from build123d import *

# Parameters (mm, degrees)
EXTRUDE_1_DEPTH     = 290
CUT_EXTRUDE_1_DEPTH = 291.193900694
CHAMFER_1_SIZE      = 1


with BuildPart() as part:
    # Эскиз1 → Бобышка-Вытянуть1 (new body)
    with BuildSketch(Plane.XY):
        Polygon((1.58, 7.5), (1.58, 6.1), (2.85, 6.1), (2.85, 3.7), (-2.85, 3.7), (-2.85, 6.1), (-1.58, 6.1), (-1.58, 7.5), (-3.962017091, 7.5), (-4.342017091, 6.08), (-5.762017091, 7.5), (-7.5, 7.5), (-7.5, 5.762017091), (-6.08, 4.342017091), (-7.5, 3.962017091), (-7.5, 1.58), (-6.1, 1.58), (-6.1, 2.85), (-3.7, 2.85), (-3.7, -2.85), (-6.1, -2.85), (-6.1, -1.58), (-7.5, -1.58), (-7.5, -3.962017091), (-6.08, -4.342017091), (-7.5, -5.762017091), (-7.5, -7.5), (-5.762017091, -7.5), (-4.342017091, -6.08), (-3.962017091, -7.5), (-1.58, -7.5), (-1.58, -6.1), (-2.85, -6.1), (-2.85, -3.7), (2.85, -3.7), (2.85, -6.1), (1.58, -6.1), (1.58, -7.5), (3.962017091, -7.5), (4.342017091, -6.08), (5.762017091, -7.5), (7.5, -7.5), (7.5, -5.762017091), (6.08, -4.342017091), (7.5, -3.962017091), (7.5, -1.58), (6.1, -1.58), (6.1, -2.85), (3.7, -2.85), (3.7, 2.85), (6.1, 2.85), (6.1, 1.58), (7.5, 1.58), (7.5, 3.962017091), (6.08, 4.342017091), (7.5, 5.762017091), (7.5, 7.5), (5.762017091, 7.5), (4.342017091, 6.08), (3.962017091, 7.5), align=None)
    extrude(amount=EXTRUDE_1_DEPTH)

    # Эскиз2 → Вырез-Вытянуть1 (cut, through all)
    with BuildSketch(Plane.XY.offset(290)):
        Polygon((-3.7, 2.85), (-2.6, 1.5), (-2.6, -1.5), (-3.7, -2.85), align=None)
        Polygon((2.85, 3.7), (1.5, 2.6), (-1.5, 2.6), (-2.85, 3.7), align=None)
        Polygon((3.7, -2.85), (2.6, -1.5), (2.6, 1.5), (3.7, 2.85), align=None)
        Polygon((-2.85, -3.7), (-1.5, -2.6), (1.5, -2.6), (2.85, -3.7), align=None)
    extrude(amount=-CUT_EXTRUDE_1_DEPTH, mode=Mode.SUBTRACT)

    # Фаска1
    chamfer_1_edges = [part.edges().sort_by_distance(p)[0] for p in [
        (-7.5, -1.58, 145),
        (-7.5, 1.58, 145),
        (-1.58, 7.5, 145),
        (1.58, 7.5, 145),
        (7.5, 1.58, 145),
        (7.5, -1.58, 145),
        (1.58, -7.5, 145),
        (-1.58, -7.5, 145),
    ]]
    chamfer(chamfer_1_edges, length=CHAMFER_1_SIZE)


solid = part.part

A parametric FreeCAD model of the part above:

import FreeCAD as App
import Part
import Sketcher


def edges_at(feature, points):
    """Names of the edges that pass closest to the given points."""
    edges = feature.Shape.Edges
    near = lambda p: min(range(len(edges)), key=lambda i: edges[i].distToShape(Part.Vertex(*p))[0])
    return sorted({f"Edge{near(p) + 1}" for p in points})


def add_polygon(sketch, points):
    """Adds a closed chain of lines whose ends are joined by coincident constraints."""
    first, n = sketch.GeometryCount, len(points)
    for a, b in zip(points, points[1:] + points[:1]):
        sketch.addGeometry(Part.LineSegment(App.Vector(*a, 0), App.Vector(*b, 0)), False)
    for i in range(n):
        sketch.addConstraint(Sketcher.Constraint("Coincident", first + i, 2, first + (i + 1) % n, 1))

doc = App.newDocument("Part")
params = doc.addObject("Spreadsheet::Sheet", "Params")
for row, (alias, value) in enumerate([
    ("sketch1_width", "5.7 mm"),
    ("sketch1_width2", "1.4 mm"),
    ("sketch1_width3", "2.4 mm"),
    ("sketch1_width4", "1.27 mm"),
    ("pad1_length", "290 mm"),
    ("sketch2_width", "3 mm"),
    ("sketch2_width2", "5.7 mm"),
    ("chamfer_size", "1 mm"),
], start=1):
    params.set(f"A{row}", alias)
    params.set(f"B{row}", "=" + value)
    params.setAlias(f"B{row}", alias)

body = doc.addObject("PartDesign::Body", "Body")

# Sketch on XY plane
sketch1 = body.newObject("Sketcher::SketchObject", "Sketch")
sketch1.AttachmentSupport = (doc.getObject("XY_Plane"), [""])
sketch1.MapMode = "FlatFace"
add_polygon(sketch1, [(1.6, 7.5), (1.6, 6.1), (2.9, 6.1), (2.9, 3.7), (-2.9, 3.7), (-2.9, 6.1), (-1.6, 6.1), (-1.6, 7.5), (-4, 7.5), (-4.3, 6.1), (-5.8, 7.5), (-7.5, 7.5), (-7.5, 5.8), (-6.1, 4.3), (-7.5, 4), (-7.5, 1.6), (-6.1, 1.6), (-6.1, 2.9), (-3.7, 2.9), (-3.7, -2.9), (-6.1, -2.9), (-6.1, -1.6), (-7.5, -1.6), (-7.5, -4), (-6.1, -4.3), (-7.5, -5.8), (-7.5, -7.5), (-5.8, -7.5), (-4.3, -6.1), (-4, -7.5), (-1.6, -7.5), (-1.6, -6.1), (-2.9, -6.1), (-2.9, -3.7), (2.9, -3.7), (2.9, -6.1), (1.6, -6.1), (1.6, -7.5), (4, -7.5), (4.3, -6.1), (5.8, -7.5), (7.5, -7.5), (7.5, -5.8), (6.1, -4.3), (7.5, -4), (7.5, -1.6), (6.1, -1.6), (6.1, -2.9), (3.7, -2.9), (3.7, 2.9), (6.1, 2.9), (6.1, 1.6), (7.5, 1.6), (7.5, 4), (6.1, 4.3), (7.5, 5.8), (7.5, 7.5), (5.8, 7.5), (4.3, 6.1), (4, 7.5)])  # lines 0-59
sketch1.addConstraint([
    Sketcher.Constraint("Vertical", 0),
    Sketcher.Constraint("Horizontal", 1),
    Sketcher.Constraint("Vertical", 2),
    Sketcher.Constraint("Horizontal", 3),
    Sketcher.Constraint("Vertical", 4),
    Sketcher.Constraint("Horizontal", 5),
    Sketcher.Constraint("Vertical", 6),
    Sketcher.Constraint("Horizontal", 7),
    Sketcher.Constraint("Horizontal", 10),
    Sketcher.Constraint("Vertical", 11),
    Sketcher.Constraint("Vertical", 14),
    Sketcher.Constraint("Horizontal", 15),
    Sketcher.Constraint("Vertical", 16),
    Sketcher.Constraint("Horizontal", 17),
    Sketcher.Constraint("Vertical", 18),
    Sketcher.Constraint("Horizontal", 19),
    Sketcher.Constraint("Vertical", 20),
    Sketcher.Constraint("Horizontal", 21),
    Sketcher.Constraint("Vertical", 22),
    Sketcher.Constraint("Vertical", 25),
    Sketcher.Constraint("Horizontal", 26),
    Sketcher.Constraint("Horizontal", 29),
    Sketcher.Constraint("Vertical", 30),
    Sketcher.Constraint("Horizontal", 31),
    Sketcher.Constraint("Vertical", 32),
    Sketcher.Constraint("Horizontal", 33),
    Sketcher.Constraint("Vertical", 34),
    Sketcher.Constraint("Horizontal", 35),
    Sketcher.Constraint("Vertical", 36),
    Sketcher.Constraint("Horizontal", 37),
    Sketcher.Constraint("Horizontal", 40),
    Sketcher.Constraint("Vertical", 41),
    Sketcher.Constraint("Vertical", 44),
    Sketcher.Constraint("Horizontal", 45),
    Sketcher.Constraint("Vertical", 46),
    Sketcher.Constraint("Horizontal", 47),
    Sketcher.Constraint("Vertical", 48),
    Sketcher.Constraint("Horizontal", 49),
    Sketcher.Constraint("Vertical", 50),
    Sketcher.Constraint("Horizontal", 51),
    Sketcher.Constraint("Vertical", 52),
    Sketcher.Constraint("Vertical", 55),
    Sketcher.Constraint("Horizontal", 56),
    Sketcher.Constraint("Horizontal", 59),
    Sketcher.Constraint("Symmetric", 0, 2, 30, 2, -1, 1),
    Sketcher.Constraint("Symmetric", 2, 2, 32, 2, -1, 1),
    Sketcher.Constraint("Symmetric", 4, 2, 34, 2, -1, 1),
    Sketcher.Constraint("Symmetric", 6, 2, 36, 2, -1, 1),
    Sketcher.Constraint("Symmetric", 8, 2, 38, 2, -1, 1),
    Sketcher.Constraint("Symmetric", 9, 2, 39, 2, -1, 1),
    Sketcher.Constraint("Symmetric", 11, 2, 41, 2, -1, 1),
    Sketcher.Constraint("Symmetric", 12, 2, 42, 2, -1, 1),
    Sketcher.Constraint("Symmetric", 13, 2, 43, 2, -1, 1),
    Sketcher.Constraint("Symmetric", 15, 2, 45, 2, -1, 1),
    Sketcher.Constraint("Symmetric", 17, 2, 47, 2, -1, 1),
    Sketcher.Constraint("Symmetric", 19, 2, 49, 2, -1, 1),
    Sketcher.Constraint("Symmetric", 21, 2, 51, 2, -1, 1),
    Sketcher.Constraint("Symmetric", 23, 2, 53, 2, -1, 1),
    Sketcher.Constraint("Symmetric", 24, 2, 54, 2, -1, 1),
    Sketcher.Constraint("Symmetric", 26, 2, 56, 2, -1, 1),
    Sketcher.Constraint("Symmetric", 27, 2, 57, 2, -1, 1),
    Sketcher.Constraint("Symmetric", 28, 2, 58, 2, -1, 1),
    Sketcher.Constraint("Symmetric", 1, 2, 4, 2, -2),
    Sketcher.Constraint("Symmetric", 29, 2, 36, 2, -2),
    Sketcher.Constraint("Symmetric", 27, 2, 38, 2, -2),
    Sketcher.Constraint("Symmetric", 26, 2, 39, 2, -2),
    Sketcher.Constraint("Symmetric", 24, 2, 41, 2, -2),
    Sketcher.Constraint("Symmetric", 23, 2, 42, 2, -2),
    Sketcher.Constraint("Symmetric", 22, 2, 43, 2, -2),
    Sketcher.Constraint("Symmetric", 20, 2, 45, 2, -2),
    Sketcher.Constraint("Parallel", 9, 12),
    Sketcher.Constraint("Perpendicular", 8, 23),
    Sketcher.Constraint("Perpendicular", 12, 24),
    Sketcher.Constraint("Perpendicular", 13, 28),
    Sketcher.Constraint("Perpendicular", 23, 38),
    Sketcher.Constraint("Perpendicular", 38, 53),
    Sketcher.Constraint("Horizontal", 7, 2, 9, 2),
    Sketcher.Constraint("Horizontal", 19, 2, 46, 2),
    Sketcher.Constraint("Vertical", 11, 2, 13, 2),
    Sketcher.Constraint("Equal", 51, 0),
    Sketcher.Constraint("Equal", 49, 2),
    Sketcher.Constraint("Equal", 56, 11),
    Sketcher.Constraint("Equal", 59, 14),
    Sketcher.Constraint("Equal", 35, 16),
    Sketcher.Constraint("Equal", 33, 18),
    Sketcher.Constraint("Equal", 9, 12),
    Sketcher.Constraint("DistanceX", 3, 2, 3, 1, 5.7),
    Sketcher.Constraint("DistanceX", 15, 1, 15, 2, 1.4),
    Sketcher.Constraint("DistanceX", 17, 1, 17, 2, 2.4),
    Sketcher.Constraint("DistanceX", 1, 1, 1, 2, 1.27),
    Sketcher.Constraint("DistanceY", -1, 1, 0, 2, 6.1),
    Sketcher.Constraint("DistanceX", 9, 2, 7, 2, 1.8),
    Sketcher.Constraint("DistanceY", 14, 2, 8, 2, 4.5),
    Sketcher.Constraint("DistanceX", 7, 2, 7, 1, 2.382017),
])
sketch1.setExpression("Constraints[146]", "Params.sketch1_width")
sketch1.setExpression("Constraints[147]", "Params.sketch1_width2")
sketch1.setExpression("Constraints[148]", "Params.sketch1_width3")
sketch1.setExpression("Constraints[149]", "Params.sketch1_width4")
pad1 = body.newObject("PartDesign::Pad", "Pad")
pad1.Profile = sketch1
pad1.setExpression("Length", "Params.pad1_length")

# Sketch on XY plane
sketch2 = body.newObject("Sketcher::SketchObject", "Sketch001")
sketch2.AttachmentSupport = (doc.getObject("XY_Plane"), [""])
sketch2.MapMode = "FlatFace"
sketch2.AttachmentOffset = App.Placement(App.Vector(0, 0, 290), App.Rotation())
add_polygon(sketch2, [(-2.6, 1.5), (-3.7, 2.9), (-3.7, -2.9), (-2.6, -1.5)])  # lines 0-3
add_polygon(sketch2, [(1.5, 2.6), (2.9, 3.7), (-2.9, 3.7), (-1.5, 2.6)])  # lines 4-7
add_polygon(sketch2, [(2.6, -1.5), (3.7, -2.9), (3.7, 2.9), (2.6, 1.5)])  # lines 8-11
add_polygon(sketch2, [(-1.5, -2.6), (-2.9, -3.7), (2.9, -3.7), (1.5, -2.6)])  # lines 12-15
sketch2.addConstraint([
    Sketcher.Constraint("Vertical", 1),
    Sketcher.Constraint("Vertical", 3),
    Sketcher.Constraint("Horizontal", 5),
    Sketcher.Constraint("Horizontal", 7),
    Sketcher.Constraint("Vertical", 9),
    Sketcher.Constraint("Vertical", 11),
    Sketcher.Constraint("Horizontal", 13),
    Sketcher.Constraint("Horizontal", 15),
    Sketcher.Constraint("Symmetric", 0, 2, 8, 2, -1, 1),
    Sketcher.Constraint("Symmetric", 2, 2, 10, 2, -1, 1),
    Sketcher.Constraint("Symmetric", 4, 2, 12, 2, -1, 1),
    Sketcher.Constraint("Symmetric", 6, 2, 14, 2, -1, 1),
    Sketcher.Constraint("Perpendicular", 0, 4),
    Sketcher.Constraint("Perpendicular", 2, 6),
    Sketcher.Constraint("Perpendicular", 4, 8),
    Sketcher.Constraint("Perpendicular", 6, 10),
    Sketcher.Constraint("Perpendicular", 8, 12),
    Sketcher.Constraint("Perpendicular", 10, 14),
    Sketcher.Constraint("Horizontal", 1, 2, 8, 2),
    Sketcher.Constraint("Horizontal", 3, 2, 10, 2),
    Sketcher.Constraint("Vertical", 5, 2, 12, 2),
    Sketcher.Constraint("Equal", 13, 1),
    Sketcher.Constraint("Equal", 15, 3),
    Sketcher.Constraint("DistanceX", 7, 1, 7, 2, 3.0),
    Sketcher.Constraint("DistanceX", 5, 2, 5, 1, 5.7),
    Sketcher.Constraint("DistanceX", 0, 2, -1, 1, 3.7),
    Sketcher.Constraint("DistanceX", 2, 2, -1, 1, 2.6),
    Sketcher.Constraint("DistanceY", -1, 1, 4, 2, 3.7),
])
sketch2.setExpression("Constraints[39]", "Params.sketch2_width")
sketch2.setExpression("Constraints[40]", "Params.sketch2_width2")
pocket1 = body.newObject("PartDesign::Pocket", "Pocket")
pocket1.Profile = sketch2
pocket1.Type = "ThroughAll"
doc.recompute()

chamfer = body.newObject("PartDesign::Chamfer", "Chamfer")
chamfer.Base = (pocket1, edges_at(pocket1, [
    (-7.5, -1.58, 145),
    (-7.5, 1.58, 145),
    (-1.58, 7.5, 145),
    (1.58, 7.5, 145),
    (7.5, 1.58, 145),
    (7.5, -1.58, 145),
    (1.58, -7.5, 145),
    (-1.58, -7.5, 145),
]))
chamfer.setExpression("Size", "Params.chamfer_size")

doc.recompute()
